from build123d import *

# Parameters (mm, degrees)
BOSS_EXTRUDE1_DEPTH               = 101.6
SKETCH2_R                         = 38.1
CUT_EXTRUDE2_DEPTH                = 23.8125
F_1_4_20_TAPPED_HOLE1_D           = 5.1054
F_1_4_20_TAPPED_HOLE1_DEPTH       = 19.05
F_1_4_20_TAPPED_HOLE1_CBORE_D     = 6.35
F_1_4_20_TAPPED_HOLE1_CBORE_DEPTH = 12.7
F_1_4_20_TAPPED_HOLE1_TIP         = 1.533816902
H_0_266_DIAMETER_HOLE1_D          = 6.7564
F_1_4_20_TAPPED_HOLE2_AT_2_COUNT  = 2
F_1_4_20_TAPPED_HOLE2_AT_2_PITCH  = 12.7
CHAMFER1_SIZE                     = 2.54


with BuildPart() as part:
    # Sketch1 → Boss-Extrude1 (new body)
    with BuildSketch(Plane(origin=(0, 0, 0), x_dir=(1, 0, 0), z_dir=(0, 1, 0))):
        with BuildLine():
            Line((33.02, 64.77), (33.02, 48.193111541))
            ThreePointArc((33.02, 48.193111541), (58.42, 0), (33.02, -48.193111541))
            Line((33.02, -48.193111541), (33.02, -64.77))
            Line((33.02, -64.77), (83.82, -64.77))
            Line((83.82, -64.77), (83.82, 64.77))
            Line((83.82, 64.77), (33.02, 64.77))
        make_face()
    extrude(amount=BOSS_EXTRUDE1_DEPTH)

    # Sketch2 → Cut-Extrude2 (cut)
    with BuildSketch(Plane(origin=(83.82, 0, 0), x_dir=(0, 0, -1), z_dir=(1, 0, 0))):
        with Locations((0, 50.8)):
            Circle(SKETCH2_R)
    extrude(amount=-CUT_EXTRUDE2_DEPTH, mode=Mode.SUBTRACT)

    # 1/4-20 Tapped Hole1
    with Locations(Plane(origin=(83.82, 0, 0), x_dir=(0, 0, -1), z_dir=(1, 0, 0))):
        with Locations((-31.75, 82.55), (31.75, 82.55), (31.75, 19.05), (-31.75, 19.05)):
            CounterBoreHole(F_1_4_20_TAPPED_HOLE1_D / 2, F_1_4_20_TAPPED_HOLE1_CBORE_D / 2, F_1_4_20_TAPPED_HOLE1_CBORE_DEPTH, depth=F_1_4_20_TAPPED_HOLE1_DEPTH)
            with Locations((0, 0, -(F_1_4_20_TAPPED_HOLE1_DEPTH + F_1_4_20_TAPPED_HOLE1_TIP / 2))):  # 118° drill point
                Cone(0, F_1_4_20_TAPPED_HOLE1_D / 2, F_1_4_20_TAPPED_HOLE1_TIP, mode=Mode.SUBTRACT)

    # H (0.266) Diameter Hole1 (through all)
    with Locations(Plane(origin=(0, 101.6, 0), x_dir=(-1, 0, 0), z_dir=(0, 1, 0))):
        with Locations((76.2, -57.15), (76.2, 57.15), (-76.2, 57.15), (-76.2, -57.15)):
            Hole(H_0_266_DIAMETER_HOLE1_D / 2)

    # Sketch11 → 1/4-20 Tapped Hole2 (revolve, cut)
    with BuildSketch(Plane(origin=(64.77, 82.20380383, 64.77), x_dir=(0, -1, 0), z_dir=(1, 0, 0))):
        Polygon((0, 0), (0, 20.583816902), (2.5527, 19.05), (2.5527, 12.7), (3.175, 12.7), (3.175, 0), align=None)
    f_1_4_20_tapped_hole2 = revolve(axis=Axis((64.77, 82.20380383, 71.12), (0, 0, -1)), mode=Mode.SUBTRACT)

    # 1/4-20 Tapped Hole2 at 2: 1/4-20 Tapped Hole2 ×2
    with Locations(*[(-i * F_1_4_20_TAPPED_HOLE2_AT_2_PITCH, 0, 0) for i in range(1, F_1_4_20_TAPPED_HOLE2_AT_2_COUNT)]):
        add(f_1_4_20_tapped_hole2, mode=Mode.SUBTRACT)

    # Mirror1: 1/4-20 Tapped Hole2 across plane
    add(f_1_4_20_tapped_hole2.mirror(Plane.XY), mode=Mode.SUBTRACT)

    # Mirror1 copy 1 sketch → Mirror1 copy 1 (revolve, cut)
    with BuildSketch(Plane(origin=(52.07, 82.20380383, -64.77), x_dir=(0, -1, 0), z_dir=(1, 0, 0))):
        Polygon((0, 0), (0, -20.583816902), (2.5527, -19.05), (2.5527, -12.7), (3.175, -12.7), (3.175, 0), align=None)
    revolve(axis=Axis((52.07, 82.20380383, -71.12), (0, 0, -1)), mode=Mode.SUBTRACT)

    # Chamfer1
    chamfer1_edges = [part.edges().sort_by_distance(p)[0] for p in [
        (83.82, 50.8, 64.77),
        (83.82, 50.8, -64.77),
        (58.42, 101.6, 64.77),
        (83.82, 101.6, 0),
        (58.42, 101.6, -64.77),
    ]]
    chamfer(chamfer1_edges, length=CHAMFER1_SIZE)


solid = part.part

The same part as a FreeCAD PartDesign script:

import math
import FreeCAD as App
import Part
import Sketcher
from FreeCAD import Vector
Q = App.Units.Quantity


def edges_at(feature, points):
    """Names of the edges that pass closest to the given points."""
    edges = feature.Shape.Edges
    near = lambda p: min(range(len(edges)), key=lambda i: edges[i].distToShape(Part.Vertex(*p))[0])
    return sorted({f"Edge{near(p) + 1}" for p in points})

doc = App.newDocument("Part")
body = doc.addObject("PartDesign::Body", "Body")

sketch1 = doc.addObject("Sketcher::SketchObject", "Sketch")
body.addObject(sketch1)
sketch1.AttachmentSupport = (doc.XZ_Plane, [""])
sketch1.MapMode = "FlatFace"
sketch1.addGeometry([
    Part.LineSegment(Vector(33, -65, 0), Vector(33, -48, 0)),
    Part.ArcOfCircle(Part.Circle(Vector(0, 0, 0), Vector(0, 0, 1), 58), math.radians(-56), math.radians(56)),
    Part.LineSegment(Vector(33, 48, 0), Vector(33, 65, 0)),
    Part.LineSegment(Vector(33, 65, 0), Vector(84, 65, 0)),
    Part.LineSegment(Vector(84, 65, 0), Vector(84, -65, 0)),
    Part.LineSegment(Vector(84, -65, 0), Vector(33, -65, 0)),
], False)
sketch1.addConstraint([
    Sketcher.Constraint("Coincident", 0, 2, 1, 1),
    Sketcher.Constraint("Coincident", 1, 2, 2, 1),
    Sketcher.Constraint("Coincident", 2, 2, 3, 1),
    Sketcher.Constraint("Coincident", 3, 2, 4, 1),
    Sketcher.Constraint("Coincident", 4, 2, 5, 1),
    Sketcher.Constraint("Coincident", 5, 2, 0, 1),
    Sketcher.Constraint("Vertical", 0),
    Sketcher.Constraint("Vertical", 2),
    Sketcher.Constraint("Horizontal", 3),
    Sketcher.Constraint("Vertical", 4),
    Sketcher.Constraint("Horizontal", 5),
    Sketcher.Constraint("Coincident", 1, 3, -1, 1),
    Sketcher.Constraint("Symmetric", 2, 2, 5, 2, -1),
    Sketcher.Constraint("Radius", 1, Q("2.3 in")),
    Sketcher.Constraint("DistanceX", 3, 1, 3, 2, Q("2 in")),
    Sketcher.Constraint("DistanceY", 4, 2, 4, 1, Q("5.1 in")),
    Sketcher.Constraint("DistanceX", -1, 1, 0, 2, Q("1.3 in")),
])
pad1 = doc.addObject("PartDesign::Pad", "Pad")
body.addObject(pad1)
pad1.Profile = sketch1
pad1.Length = Q("4 in")
pad1.Reversed = True

sketch2 = doc.addObject("Sketcher::SketchObject", "Sketch001")
body.addObject(sketch2)
sketch2.AttachmentSupport = (doc.YZ_Plane, [""])
sketch2.MapMode = "FlatFace"
sketch2.AttachmentOffset = App.Placement(Vector(0, 0, 3.3 * 25.4), App.Rotation())
sketch2.addGeometry(Part.Circle(Vector(51, 0, 0), Vector(0, 0, 1), 38), False)
sketch2.addConstraint([
    Sketcher.Constraint("PointOnObject", 0, 3, -1),
    Sketcher.Constraint("Diameter", 0, Q("3 in")),
    Sketcher.Constraint("DistanceX", -1, 1, 0, 3, Q("2 in")),
])
pocket1 = doc.addObject("PartDesign::Pocket", "Pocket")
body.addObject(pocket1)
pocket1.Profile = sketch2
pocket1.Length = Q("0.9375 in")

sketch3 = doc.addObject("Sketcher::SketchObject", "Sketch002")
body.addObject(sketch3)
sketch3.AttachmentSupport = (doc.YZ_Plane, [""])
sketch3.MapMode = "FlatFace"
sketch3.AttachmentOffset = App.Placement(Vector(0, 0, 3.3 * 25.4), App.Rotation())
sketch3.addGeometry([
    Part.Circle(Vector(82.5, 31.8, 0), Vector(0, 0, 1), 2.6),
    Part.Circle(Vector(82.5, -31.8, 0), Vector(0, 0, 1), 2.6),
    Part.Circle(Vector(19.1, -31.8, 0), Vector(0, 0, 1), 2.6),
    Part.Circle(Vector(19.1, 31.8, 0), Vector(0, 0, 1), 2.6),
], False)
sketch3.addConstraint([
    Sketcher.Constraint("Equal", 0, 1),
    Sketcher.Constraint("Equal", 1, 2),
    Sketcher.Constraint("Equal", 2, 3),
    Sketcher.Constraint("Symmetric", 0, 3, 1, 3, -1),
    Sketcher.Constraint("Symmetric", 2, 3, 3, 3, -1),
    Sketcher.Constraint("Horizontal", 1, 3, 2, 3),
    Sketcher.Constraint("Diameter", 0, Q("0.201 in")),
    Sketcher.Constraint("DistanceY", 1, 3, 0, 3, Q("2.5 in")),
    Sketcher.Constraint("DistanceX", 2, 3, 1, 3, Q("2.5 in")),
    Sketcher.Constraint("DistanceX", -1, 1, 0, 3, Q("3.25 in")),
])
doc.recompute()
hole = doc.addObject("PartDesign::Hole", "Hole")
body.addObject(hole)
hole.Profile = sketch3
hole.ThreadType = "None"
hole.Diameter = Q("0.201 in")
hole.DepthType = "Dimension"
hole.Depth = Q("0.75 in")
hole.DrillPoint = "Angled"
hole.DrillPointAngle = 118
hole.HoleCutType = "Counterbore"
hole.HoleCutDiameter = Q("0.25 in")
hole.HoleCutDepth = Q("0.5 in")

sketch4 = doc.addObject("Sketcher::SketchObject", "Sketch003")
body.addObject(sketch4)
sketch4.AttachmentSupport = (doc.XZ_Plane, [""])
sketch4.MapMode = "FlatFace"
sketch4.AttachmentOffset = App.Placement(Vector(0, 0, -4 * 25.4), App.Rotation())
sketch4.addGeometry([
    Part.Circle(Vector(-76.2, -57.1, 0), Vector(0, 0, 1), 3.4),
    Part.Circle(Vector(-76.2, 57.1, 0), Vector(0, 0, 1), 3.4),
    Part.Circle(Vector(76.2, 57.1, 0), Vector(0, 0, 1), 3.4),
    Part.Circle(Vector(76.2, -57.1, 0), Vector(0, 0, 1), 3.4),
], False)
sketch4.addConstraint([
    Sketcher.Constraint("Equal", 0, 1),
    Sketcher.Constraint("Equal", 1, 2),
    Sketcher.Constraint("Equal", 2, 3),
    Sketcher.Constraint("Symmetric", 0, 3, 2, 3, -1, 1),
    Sketcher.Constraint("Symmetric", 1, 3, 3, 3, -1, 1),
    Sketcher.Constraint("Symmetric", 1, 3, 2, 3, -2),
    Sketcher.Constraint("Diameter", 0, Q("0.266 in")),
    Sketcher.Constraint("DistanceX", 0, 3, -1, 1, Q("3 in")),
    Sketcher.Constraint("DistanceY", 0, 3, 1, 3, Q("4.5 in")),
])
doc.recompute()
hole2 = doc.addObject("PartDesign::Hole", "Hole001")
body.addObject(hole2)
hole2.Profile = sketch4
hole2.ThreadType = "None"
hole2.Diameter = Q("0.266 in")
hole2.DepthType = "ThroughAll"
hole2.Reversed = True

sketch5 = doc.addObject("Sketcher::SketchObject", "Sketch004")
body.addObject(sketch5)
sketch5.AttachmentSupport = (doc.YZ_Plane, [""])
sketch5.MapMode = "FlatFace"
sketch5.AttachmentOffset = App.Placement(Vector(0, 0, 2.55 * 25.4), App.Rotation())
sketch5.addGeometry([
    Part.LineSegment(Vector(82.2, 44.2, 0), Vector(82.2, 64.8, 0)),
    Part.LineSegment(Vector(82.2, 64.8, 0), Vector(79, 64.8, 0)),
    Part.LineSegment(Vector(79, 64.8, 0), Vector(79, 52.1, 0)),
    Part.LineSegment(Vector(79, 52.1, 0), Vector(79.7, 52.1, 0)),
    Part.LineSegment(Vector(79.7, 52.1, 0), Vector(79.7, 45.7, 0)),
    Part.LineSegment(Vector(79.7, 45.7, 0), Vector(82.2, 44.2, 0)),
], False)
sketch5.addGeometry(Part.LineSegment(Vector(82.2, 64.8, 0), Vector(82.2, 44.2, 0)), True)
sketch5.addConstraint([
    Sketcher.Constraint("Coincident", 0, 2, 1, 1),
    Sketcher.Constraint("Coincident", 1, 2, 2, 1),
    Sketcher.Constraint("Coincident", 2, 2, 3, 1),
    Sketcher.Constraint("Coincident", 3, 2, 4, 1),
    Sketcher.Constraint("Coincident", 4, 2, 5, 1),
    Sketcher.Constraint("Coincident", 5, 2, 0, 1),
    Sketcher.Constraint("Vertical", 0),
    Sketcher.Constraint("Horizontal", 1),
    Sketcher.Constraint("Vertical", 2),
    Sketcher.Constraint("Horizontal", 3),
    Sketcher.Constraint("Vertical", 4),
    Sketcher.Constraint("Vertical", 6),
    Sketcher.Constraint("Coincident", 6, 1, 0, 2),
    Sketcher.Constraint("Equal", 0, 6),
    Sketcher.Constraint("DistanceY", 2, 2, 2, 1, Q("0.5 in")),
    Sketcher.Constraint("Angle", 5, Q("-31 deg")),
    Sketcher.Constraint("DistanceY", 4, 2, 4, 1, Q("0.25 in")),
    Sketcher.Constraint("DistanceY", -1, 1, 4, 2, Q("1.8 in")),
    Sketcher.Constraint("DistanceX", 1, 2, 1, 1, Q("0.125 in")),
    Sketcher.Constraint("DistanceX", 3, 1, 3, 2, Q("0.0245 in")),
    Sketcher.Constraint("DistanceX", -1, 1, 0, 2, Q("82.203804 mm")),
])
groove = doc.addObject("PartDesign::Groove", "Groove")
body.addObject(groove)
groove.Profile = sketch5
groove.ReferenceAxis = (sketch5, ["Axis0"])
groove.Angle = 360
doc.recompute()

linearpattern = doc.addObject("PartDesign::LinearPattern", "LinearPattern")
body.addObject(linearpattern)
linearpattern.Originals = [groove]
linearpattern.Direction = (doc.X_Axis, [""])
linearpattern.Mode = "offset"
linearpattern.Offset = Q("0.5 in")
linearpattern.Occurrences = 2
linearpattern.Reversed = True
body.Tip = linearpattern
doc.recompute()

mirrored = doc.addObject("PartDesign::Mirrored", "Mirrored")
body.addObject(mirrored)
mirrored.Originals = [groove]
mirrored.MirrorPlane = (doc.XY_Plane, [""])
body.Tip = mirrored

sketch6 = doc.addObject("Sketcher::SketchObject", "Sketch005")
body.addObject(sketch6)
sketch6.AttachmentSupport = (doc.YZ_Plane, [""])
sketch6.MapMode = "FlatFace"
sketch6.AttachmentOffset = App.Placement(Vector(0, 0, 2.05 * 25.4), App.Rotation())
sketch6.addGeometry([
    Part.LineSegment(Vector(82.2, -64.8, 0), Vector(82.2, -44.2, 0)),
    Part.LineSegment(Vector(82.2, -44.2, 0), Vector(79.7, -45.7, 0)),
    Part.LineSegment(Vector(79.7, -45.7, 0), Vector(79.7, -52.1, 0)),
    Part.LineSegment(Vector(79.7, -52.1, 0), Vector(79, -52.1, 0)),
    Part.LineSegment(Vector(79, -52.1, 0), Vector(79, -64.8, 0)),
    Part.LineSegment(Vector(79, -64.8, 0), Vector(82.2, -64.8, 0)),
], False)
sketch6.addGeometry(Part.LineSegment(Vector(82.2, -44.2, 0), Vector(82.2, -64.8, 0)), True)
sketch6.addConstraint([
    Sketcher.Constraint("Coincident", 0, 2, 1, 1),
    Sketcher.Constraint("Coincident", 1, 2, 2, 1),
    Sketcher.Constraint("Coincident", 2, 2, 3, 1),
    Sketcher.Constraint("Coincident", 3, 2, 4, 1),
    Sketcher.Constraint("Coincident", 4, 2, 5, 1),
    Sketcher.Constraint("Coincident", 5, 2, 0, 1),
    Sketcher.Constraint("Vertical", 0),
    Sketcher.Constraint("Vertical", 2),
    Sketcher.Constraint("Horizontal", 3),
    Sketcher.Constraint("Vertical", 4),
    Sketcher.Constraint("Horizontal", 5),
    Sketcher.Constraint("Vertical", 6),
    Sketcher.Constraint("Coincident", 6, 1, 0, 2),
    Sketcher.Constraint("Horizontal", 4, 2, 6, 2),
    Sketcher.Constraint("DistanceY", 4, 2, 4, 1, Q("0.5 in")),
    Sketcher.Constraint("Angle", 1, Q("-149 deg")),
    Sketcher.Constraint("DistanceY", 2, 2, 2, 1, Q("0.25 in")),
    Sketcher.Constraint("DistanceY", 1, 2, -1, 1, Q("1.8 in")),
    Sketcher.Constraint("DistanceX", 5, 1, 5, 2, Q("0.125 in")),
    Sketcher.Constraint("DistanceX", 3, 2, 3, 1, Q("0.0245 in")),
    Sketcher.Constraint("DistanceX", -1, 1, 0, 2, Q("82.203804 mm")),
])
groove2 = doc.addObject("PartDesign::Groove", "Groove001")
body.addObject(groove2)
groove2.Profile = sketch6
groove2.ReferenceAxis = (sketch6, ["Axis0"])
groove2.Angle = 360
doc.recompute()

chamfer = doc.addObject("PartDesign::Chamfer", "Chamfer")
body.addObject(chamfer)
chamfer.Base = (groove2, edges_at(groove2, [
    (83.82, 50.8, 64.77),
    (83.82, 50.8, -64.77),
    (58.42, 101.6, 64.77),
    (83.82, 101.6, 0),
    (58.42, 101.6, -64.77),
]))
chamfer.Size = Q("0.1 in")

doc.recompute()
